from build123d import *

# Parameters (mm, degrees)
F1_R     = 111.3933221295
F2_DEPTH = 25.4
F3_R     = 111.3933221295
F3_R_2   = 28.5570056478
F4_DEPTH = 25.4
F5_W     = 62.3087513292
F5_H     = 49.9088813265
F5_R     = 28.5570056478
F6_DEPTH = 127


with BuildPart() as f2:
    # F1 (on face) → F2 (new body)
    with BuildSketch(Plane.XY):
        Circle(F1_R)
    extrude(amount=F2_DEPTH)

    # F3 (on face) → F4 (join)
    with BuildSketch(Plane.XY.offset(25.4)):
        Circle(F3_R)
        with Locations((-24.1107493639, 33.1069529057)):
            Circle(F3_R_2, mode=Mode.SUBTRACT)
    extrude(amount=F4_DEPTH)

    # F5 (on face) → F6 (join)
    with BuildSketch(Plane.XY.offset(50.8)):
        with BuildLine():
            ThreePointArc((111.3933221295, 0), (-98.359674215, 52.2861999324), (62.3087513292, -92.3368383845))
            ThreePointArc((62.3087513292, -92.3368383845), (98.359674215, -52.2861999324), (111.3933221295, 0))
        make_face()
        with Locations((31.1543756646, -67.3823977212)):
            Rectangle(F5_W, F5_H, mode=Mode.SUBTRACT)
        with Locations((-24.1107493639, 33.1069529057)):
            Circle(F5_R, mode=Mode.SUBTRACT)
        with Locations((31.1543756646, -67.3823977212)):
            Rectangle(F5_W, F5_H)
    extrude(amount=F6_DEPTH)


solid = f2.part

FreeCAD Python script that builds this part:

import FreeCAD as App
import Part
import Sketcher
from FreeCAD import Vector
Q = App.Units.Quantity

doc = App.newDocument("Part")
body = doc.addObject("PartDesign::Body", "Body")

# Sketch on XY plane
sketch1 = body.newObject("Sketcher::SketchObject", "Sketch")
sketch1.AttachmentSupport = (doc.getObject("XY_Plane"), [""])
sketch1.MapMode = "FlatFace"
sketch1.addGeometry(Part.Circle(Vector(0, 0, 0), Vector(0, 0, 1), 111), False)
sketch1.addConstraint([
    Sketcher.Constraint("Coincident", 0, 3, -1, 1),
    Sketcher.Constraint("Diameter", 0, 222.786644),
])
pad1 = body.newObject("PartDesign::Pad", "Pad")
pad1.Profile = sketch1
pad1.Length = Q("1 in")

# Sketch on XY plane
sketch2 = body.newObject("Sketcher::SketchObject", "Sketch001")
sketch2.AttachmentSupport = (doc.getObject("XY_Plane"), [""])
sketch2.MapMode = "FlatFace"
sketch2.AttachmentOffset = App.Placement(Vector(0, 0, 1 * 25.4), App.Rotation())
sketch2.addGeometry([
    Part.Circle(Vector(0, 0, 0), Vector(0, 0, 1), 111),
    Part.Circle(Vector(-24, 33, 0), Vector(0, 0, 1), 29),
], False)
sketch2.addConstraint([
    Sketcher.Constraint("Coincident", 0, 3, -1, 1),
    Sketcher.Constraint("Diameter", 1, 57.114011),
    Sketcher.Constraint("Diameter", 0, 222.786644),
    Sketcher.Constraint("DistanceX", 1, 3, -1, 1, 24.110749),
    Sketcher.Constraint("DistanceY", -1, 1, 1, 3, 33.106953),
])
pad2 = body.newObject("PartDesign::Pad", "Pad001")
pad2.Profile = sketch2
pad2.Length = Q("1 in")

# Sketch on XY plane
sketch3 = body.newObject("Sketcher::SketchObject", "Sketch002")
sketch3.AttachmentSupport = (doc.getObject("XY_Plane"), [""])
sketch3.MapMode = "FlatFace"
sketch3.AttachmentOffset = App.Placement(Vector(0, 0, 2 * 25.4), App.Rotation())
sketch3.addGeometry([
    Part.Circle(Vector(0, 0, 0), Vector(0, 0, 1), 111),
    Part.Circle(Vector(-24, 33, 0), Vector(0, 0, 1), 29),
], False)
sketch3.addConstraint([
    Sketcher.Constraint("Coincident", 0, 3, -1, 1),
    Sketcher.Constraint("Diameter", 1, 57.114011),
    Sketcher.Constraint("Diameter", 0, 222.786644),
    Sketcher.Constraint("DistanceX", 1, 3, -1, 1, 24.110749),
    Sketcher.Constraint("DistanceY", -1, 1, 1, 3, 33.106953),
])
pad3 = body.newObject("PartDesign::Pad", "Pad002")
pad3.Profile = sketch3
pad3.Length = Q("5 in")

doc.recompute()
